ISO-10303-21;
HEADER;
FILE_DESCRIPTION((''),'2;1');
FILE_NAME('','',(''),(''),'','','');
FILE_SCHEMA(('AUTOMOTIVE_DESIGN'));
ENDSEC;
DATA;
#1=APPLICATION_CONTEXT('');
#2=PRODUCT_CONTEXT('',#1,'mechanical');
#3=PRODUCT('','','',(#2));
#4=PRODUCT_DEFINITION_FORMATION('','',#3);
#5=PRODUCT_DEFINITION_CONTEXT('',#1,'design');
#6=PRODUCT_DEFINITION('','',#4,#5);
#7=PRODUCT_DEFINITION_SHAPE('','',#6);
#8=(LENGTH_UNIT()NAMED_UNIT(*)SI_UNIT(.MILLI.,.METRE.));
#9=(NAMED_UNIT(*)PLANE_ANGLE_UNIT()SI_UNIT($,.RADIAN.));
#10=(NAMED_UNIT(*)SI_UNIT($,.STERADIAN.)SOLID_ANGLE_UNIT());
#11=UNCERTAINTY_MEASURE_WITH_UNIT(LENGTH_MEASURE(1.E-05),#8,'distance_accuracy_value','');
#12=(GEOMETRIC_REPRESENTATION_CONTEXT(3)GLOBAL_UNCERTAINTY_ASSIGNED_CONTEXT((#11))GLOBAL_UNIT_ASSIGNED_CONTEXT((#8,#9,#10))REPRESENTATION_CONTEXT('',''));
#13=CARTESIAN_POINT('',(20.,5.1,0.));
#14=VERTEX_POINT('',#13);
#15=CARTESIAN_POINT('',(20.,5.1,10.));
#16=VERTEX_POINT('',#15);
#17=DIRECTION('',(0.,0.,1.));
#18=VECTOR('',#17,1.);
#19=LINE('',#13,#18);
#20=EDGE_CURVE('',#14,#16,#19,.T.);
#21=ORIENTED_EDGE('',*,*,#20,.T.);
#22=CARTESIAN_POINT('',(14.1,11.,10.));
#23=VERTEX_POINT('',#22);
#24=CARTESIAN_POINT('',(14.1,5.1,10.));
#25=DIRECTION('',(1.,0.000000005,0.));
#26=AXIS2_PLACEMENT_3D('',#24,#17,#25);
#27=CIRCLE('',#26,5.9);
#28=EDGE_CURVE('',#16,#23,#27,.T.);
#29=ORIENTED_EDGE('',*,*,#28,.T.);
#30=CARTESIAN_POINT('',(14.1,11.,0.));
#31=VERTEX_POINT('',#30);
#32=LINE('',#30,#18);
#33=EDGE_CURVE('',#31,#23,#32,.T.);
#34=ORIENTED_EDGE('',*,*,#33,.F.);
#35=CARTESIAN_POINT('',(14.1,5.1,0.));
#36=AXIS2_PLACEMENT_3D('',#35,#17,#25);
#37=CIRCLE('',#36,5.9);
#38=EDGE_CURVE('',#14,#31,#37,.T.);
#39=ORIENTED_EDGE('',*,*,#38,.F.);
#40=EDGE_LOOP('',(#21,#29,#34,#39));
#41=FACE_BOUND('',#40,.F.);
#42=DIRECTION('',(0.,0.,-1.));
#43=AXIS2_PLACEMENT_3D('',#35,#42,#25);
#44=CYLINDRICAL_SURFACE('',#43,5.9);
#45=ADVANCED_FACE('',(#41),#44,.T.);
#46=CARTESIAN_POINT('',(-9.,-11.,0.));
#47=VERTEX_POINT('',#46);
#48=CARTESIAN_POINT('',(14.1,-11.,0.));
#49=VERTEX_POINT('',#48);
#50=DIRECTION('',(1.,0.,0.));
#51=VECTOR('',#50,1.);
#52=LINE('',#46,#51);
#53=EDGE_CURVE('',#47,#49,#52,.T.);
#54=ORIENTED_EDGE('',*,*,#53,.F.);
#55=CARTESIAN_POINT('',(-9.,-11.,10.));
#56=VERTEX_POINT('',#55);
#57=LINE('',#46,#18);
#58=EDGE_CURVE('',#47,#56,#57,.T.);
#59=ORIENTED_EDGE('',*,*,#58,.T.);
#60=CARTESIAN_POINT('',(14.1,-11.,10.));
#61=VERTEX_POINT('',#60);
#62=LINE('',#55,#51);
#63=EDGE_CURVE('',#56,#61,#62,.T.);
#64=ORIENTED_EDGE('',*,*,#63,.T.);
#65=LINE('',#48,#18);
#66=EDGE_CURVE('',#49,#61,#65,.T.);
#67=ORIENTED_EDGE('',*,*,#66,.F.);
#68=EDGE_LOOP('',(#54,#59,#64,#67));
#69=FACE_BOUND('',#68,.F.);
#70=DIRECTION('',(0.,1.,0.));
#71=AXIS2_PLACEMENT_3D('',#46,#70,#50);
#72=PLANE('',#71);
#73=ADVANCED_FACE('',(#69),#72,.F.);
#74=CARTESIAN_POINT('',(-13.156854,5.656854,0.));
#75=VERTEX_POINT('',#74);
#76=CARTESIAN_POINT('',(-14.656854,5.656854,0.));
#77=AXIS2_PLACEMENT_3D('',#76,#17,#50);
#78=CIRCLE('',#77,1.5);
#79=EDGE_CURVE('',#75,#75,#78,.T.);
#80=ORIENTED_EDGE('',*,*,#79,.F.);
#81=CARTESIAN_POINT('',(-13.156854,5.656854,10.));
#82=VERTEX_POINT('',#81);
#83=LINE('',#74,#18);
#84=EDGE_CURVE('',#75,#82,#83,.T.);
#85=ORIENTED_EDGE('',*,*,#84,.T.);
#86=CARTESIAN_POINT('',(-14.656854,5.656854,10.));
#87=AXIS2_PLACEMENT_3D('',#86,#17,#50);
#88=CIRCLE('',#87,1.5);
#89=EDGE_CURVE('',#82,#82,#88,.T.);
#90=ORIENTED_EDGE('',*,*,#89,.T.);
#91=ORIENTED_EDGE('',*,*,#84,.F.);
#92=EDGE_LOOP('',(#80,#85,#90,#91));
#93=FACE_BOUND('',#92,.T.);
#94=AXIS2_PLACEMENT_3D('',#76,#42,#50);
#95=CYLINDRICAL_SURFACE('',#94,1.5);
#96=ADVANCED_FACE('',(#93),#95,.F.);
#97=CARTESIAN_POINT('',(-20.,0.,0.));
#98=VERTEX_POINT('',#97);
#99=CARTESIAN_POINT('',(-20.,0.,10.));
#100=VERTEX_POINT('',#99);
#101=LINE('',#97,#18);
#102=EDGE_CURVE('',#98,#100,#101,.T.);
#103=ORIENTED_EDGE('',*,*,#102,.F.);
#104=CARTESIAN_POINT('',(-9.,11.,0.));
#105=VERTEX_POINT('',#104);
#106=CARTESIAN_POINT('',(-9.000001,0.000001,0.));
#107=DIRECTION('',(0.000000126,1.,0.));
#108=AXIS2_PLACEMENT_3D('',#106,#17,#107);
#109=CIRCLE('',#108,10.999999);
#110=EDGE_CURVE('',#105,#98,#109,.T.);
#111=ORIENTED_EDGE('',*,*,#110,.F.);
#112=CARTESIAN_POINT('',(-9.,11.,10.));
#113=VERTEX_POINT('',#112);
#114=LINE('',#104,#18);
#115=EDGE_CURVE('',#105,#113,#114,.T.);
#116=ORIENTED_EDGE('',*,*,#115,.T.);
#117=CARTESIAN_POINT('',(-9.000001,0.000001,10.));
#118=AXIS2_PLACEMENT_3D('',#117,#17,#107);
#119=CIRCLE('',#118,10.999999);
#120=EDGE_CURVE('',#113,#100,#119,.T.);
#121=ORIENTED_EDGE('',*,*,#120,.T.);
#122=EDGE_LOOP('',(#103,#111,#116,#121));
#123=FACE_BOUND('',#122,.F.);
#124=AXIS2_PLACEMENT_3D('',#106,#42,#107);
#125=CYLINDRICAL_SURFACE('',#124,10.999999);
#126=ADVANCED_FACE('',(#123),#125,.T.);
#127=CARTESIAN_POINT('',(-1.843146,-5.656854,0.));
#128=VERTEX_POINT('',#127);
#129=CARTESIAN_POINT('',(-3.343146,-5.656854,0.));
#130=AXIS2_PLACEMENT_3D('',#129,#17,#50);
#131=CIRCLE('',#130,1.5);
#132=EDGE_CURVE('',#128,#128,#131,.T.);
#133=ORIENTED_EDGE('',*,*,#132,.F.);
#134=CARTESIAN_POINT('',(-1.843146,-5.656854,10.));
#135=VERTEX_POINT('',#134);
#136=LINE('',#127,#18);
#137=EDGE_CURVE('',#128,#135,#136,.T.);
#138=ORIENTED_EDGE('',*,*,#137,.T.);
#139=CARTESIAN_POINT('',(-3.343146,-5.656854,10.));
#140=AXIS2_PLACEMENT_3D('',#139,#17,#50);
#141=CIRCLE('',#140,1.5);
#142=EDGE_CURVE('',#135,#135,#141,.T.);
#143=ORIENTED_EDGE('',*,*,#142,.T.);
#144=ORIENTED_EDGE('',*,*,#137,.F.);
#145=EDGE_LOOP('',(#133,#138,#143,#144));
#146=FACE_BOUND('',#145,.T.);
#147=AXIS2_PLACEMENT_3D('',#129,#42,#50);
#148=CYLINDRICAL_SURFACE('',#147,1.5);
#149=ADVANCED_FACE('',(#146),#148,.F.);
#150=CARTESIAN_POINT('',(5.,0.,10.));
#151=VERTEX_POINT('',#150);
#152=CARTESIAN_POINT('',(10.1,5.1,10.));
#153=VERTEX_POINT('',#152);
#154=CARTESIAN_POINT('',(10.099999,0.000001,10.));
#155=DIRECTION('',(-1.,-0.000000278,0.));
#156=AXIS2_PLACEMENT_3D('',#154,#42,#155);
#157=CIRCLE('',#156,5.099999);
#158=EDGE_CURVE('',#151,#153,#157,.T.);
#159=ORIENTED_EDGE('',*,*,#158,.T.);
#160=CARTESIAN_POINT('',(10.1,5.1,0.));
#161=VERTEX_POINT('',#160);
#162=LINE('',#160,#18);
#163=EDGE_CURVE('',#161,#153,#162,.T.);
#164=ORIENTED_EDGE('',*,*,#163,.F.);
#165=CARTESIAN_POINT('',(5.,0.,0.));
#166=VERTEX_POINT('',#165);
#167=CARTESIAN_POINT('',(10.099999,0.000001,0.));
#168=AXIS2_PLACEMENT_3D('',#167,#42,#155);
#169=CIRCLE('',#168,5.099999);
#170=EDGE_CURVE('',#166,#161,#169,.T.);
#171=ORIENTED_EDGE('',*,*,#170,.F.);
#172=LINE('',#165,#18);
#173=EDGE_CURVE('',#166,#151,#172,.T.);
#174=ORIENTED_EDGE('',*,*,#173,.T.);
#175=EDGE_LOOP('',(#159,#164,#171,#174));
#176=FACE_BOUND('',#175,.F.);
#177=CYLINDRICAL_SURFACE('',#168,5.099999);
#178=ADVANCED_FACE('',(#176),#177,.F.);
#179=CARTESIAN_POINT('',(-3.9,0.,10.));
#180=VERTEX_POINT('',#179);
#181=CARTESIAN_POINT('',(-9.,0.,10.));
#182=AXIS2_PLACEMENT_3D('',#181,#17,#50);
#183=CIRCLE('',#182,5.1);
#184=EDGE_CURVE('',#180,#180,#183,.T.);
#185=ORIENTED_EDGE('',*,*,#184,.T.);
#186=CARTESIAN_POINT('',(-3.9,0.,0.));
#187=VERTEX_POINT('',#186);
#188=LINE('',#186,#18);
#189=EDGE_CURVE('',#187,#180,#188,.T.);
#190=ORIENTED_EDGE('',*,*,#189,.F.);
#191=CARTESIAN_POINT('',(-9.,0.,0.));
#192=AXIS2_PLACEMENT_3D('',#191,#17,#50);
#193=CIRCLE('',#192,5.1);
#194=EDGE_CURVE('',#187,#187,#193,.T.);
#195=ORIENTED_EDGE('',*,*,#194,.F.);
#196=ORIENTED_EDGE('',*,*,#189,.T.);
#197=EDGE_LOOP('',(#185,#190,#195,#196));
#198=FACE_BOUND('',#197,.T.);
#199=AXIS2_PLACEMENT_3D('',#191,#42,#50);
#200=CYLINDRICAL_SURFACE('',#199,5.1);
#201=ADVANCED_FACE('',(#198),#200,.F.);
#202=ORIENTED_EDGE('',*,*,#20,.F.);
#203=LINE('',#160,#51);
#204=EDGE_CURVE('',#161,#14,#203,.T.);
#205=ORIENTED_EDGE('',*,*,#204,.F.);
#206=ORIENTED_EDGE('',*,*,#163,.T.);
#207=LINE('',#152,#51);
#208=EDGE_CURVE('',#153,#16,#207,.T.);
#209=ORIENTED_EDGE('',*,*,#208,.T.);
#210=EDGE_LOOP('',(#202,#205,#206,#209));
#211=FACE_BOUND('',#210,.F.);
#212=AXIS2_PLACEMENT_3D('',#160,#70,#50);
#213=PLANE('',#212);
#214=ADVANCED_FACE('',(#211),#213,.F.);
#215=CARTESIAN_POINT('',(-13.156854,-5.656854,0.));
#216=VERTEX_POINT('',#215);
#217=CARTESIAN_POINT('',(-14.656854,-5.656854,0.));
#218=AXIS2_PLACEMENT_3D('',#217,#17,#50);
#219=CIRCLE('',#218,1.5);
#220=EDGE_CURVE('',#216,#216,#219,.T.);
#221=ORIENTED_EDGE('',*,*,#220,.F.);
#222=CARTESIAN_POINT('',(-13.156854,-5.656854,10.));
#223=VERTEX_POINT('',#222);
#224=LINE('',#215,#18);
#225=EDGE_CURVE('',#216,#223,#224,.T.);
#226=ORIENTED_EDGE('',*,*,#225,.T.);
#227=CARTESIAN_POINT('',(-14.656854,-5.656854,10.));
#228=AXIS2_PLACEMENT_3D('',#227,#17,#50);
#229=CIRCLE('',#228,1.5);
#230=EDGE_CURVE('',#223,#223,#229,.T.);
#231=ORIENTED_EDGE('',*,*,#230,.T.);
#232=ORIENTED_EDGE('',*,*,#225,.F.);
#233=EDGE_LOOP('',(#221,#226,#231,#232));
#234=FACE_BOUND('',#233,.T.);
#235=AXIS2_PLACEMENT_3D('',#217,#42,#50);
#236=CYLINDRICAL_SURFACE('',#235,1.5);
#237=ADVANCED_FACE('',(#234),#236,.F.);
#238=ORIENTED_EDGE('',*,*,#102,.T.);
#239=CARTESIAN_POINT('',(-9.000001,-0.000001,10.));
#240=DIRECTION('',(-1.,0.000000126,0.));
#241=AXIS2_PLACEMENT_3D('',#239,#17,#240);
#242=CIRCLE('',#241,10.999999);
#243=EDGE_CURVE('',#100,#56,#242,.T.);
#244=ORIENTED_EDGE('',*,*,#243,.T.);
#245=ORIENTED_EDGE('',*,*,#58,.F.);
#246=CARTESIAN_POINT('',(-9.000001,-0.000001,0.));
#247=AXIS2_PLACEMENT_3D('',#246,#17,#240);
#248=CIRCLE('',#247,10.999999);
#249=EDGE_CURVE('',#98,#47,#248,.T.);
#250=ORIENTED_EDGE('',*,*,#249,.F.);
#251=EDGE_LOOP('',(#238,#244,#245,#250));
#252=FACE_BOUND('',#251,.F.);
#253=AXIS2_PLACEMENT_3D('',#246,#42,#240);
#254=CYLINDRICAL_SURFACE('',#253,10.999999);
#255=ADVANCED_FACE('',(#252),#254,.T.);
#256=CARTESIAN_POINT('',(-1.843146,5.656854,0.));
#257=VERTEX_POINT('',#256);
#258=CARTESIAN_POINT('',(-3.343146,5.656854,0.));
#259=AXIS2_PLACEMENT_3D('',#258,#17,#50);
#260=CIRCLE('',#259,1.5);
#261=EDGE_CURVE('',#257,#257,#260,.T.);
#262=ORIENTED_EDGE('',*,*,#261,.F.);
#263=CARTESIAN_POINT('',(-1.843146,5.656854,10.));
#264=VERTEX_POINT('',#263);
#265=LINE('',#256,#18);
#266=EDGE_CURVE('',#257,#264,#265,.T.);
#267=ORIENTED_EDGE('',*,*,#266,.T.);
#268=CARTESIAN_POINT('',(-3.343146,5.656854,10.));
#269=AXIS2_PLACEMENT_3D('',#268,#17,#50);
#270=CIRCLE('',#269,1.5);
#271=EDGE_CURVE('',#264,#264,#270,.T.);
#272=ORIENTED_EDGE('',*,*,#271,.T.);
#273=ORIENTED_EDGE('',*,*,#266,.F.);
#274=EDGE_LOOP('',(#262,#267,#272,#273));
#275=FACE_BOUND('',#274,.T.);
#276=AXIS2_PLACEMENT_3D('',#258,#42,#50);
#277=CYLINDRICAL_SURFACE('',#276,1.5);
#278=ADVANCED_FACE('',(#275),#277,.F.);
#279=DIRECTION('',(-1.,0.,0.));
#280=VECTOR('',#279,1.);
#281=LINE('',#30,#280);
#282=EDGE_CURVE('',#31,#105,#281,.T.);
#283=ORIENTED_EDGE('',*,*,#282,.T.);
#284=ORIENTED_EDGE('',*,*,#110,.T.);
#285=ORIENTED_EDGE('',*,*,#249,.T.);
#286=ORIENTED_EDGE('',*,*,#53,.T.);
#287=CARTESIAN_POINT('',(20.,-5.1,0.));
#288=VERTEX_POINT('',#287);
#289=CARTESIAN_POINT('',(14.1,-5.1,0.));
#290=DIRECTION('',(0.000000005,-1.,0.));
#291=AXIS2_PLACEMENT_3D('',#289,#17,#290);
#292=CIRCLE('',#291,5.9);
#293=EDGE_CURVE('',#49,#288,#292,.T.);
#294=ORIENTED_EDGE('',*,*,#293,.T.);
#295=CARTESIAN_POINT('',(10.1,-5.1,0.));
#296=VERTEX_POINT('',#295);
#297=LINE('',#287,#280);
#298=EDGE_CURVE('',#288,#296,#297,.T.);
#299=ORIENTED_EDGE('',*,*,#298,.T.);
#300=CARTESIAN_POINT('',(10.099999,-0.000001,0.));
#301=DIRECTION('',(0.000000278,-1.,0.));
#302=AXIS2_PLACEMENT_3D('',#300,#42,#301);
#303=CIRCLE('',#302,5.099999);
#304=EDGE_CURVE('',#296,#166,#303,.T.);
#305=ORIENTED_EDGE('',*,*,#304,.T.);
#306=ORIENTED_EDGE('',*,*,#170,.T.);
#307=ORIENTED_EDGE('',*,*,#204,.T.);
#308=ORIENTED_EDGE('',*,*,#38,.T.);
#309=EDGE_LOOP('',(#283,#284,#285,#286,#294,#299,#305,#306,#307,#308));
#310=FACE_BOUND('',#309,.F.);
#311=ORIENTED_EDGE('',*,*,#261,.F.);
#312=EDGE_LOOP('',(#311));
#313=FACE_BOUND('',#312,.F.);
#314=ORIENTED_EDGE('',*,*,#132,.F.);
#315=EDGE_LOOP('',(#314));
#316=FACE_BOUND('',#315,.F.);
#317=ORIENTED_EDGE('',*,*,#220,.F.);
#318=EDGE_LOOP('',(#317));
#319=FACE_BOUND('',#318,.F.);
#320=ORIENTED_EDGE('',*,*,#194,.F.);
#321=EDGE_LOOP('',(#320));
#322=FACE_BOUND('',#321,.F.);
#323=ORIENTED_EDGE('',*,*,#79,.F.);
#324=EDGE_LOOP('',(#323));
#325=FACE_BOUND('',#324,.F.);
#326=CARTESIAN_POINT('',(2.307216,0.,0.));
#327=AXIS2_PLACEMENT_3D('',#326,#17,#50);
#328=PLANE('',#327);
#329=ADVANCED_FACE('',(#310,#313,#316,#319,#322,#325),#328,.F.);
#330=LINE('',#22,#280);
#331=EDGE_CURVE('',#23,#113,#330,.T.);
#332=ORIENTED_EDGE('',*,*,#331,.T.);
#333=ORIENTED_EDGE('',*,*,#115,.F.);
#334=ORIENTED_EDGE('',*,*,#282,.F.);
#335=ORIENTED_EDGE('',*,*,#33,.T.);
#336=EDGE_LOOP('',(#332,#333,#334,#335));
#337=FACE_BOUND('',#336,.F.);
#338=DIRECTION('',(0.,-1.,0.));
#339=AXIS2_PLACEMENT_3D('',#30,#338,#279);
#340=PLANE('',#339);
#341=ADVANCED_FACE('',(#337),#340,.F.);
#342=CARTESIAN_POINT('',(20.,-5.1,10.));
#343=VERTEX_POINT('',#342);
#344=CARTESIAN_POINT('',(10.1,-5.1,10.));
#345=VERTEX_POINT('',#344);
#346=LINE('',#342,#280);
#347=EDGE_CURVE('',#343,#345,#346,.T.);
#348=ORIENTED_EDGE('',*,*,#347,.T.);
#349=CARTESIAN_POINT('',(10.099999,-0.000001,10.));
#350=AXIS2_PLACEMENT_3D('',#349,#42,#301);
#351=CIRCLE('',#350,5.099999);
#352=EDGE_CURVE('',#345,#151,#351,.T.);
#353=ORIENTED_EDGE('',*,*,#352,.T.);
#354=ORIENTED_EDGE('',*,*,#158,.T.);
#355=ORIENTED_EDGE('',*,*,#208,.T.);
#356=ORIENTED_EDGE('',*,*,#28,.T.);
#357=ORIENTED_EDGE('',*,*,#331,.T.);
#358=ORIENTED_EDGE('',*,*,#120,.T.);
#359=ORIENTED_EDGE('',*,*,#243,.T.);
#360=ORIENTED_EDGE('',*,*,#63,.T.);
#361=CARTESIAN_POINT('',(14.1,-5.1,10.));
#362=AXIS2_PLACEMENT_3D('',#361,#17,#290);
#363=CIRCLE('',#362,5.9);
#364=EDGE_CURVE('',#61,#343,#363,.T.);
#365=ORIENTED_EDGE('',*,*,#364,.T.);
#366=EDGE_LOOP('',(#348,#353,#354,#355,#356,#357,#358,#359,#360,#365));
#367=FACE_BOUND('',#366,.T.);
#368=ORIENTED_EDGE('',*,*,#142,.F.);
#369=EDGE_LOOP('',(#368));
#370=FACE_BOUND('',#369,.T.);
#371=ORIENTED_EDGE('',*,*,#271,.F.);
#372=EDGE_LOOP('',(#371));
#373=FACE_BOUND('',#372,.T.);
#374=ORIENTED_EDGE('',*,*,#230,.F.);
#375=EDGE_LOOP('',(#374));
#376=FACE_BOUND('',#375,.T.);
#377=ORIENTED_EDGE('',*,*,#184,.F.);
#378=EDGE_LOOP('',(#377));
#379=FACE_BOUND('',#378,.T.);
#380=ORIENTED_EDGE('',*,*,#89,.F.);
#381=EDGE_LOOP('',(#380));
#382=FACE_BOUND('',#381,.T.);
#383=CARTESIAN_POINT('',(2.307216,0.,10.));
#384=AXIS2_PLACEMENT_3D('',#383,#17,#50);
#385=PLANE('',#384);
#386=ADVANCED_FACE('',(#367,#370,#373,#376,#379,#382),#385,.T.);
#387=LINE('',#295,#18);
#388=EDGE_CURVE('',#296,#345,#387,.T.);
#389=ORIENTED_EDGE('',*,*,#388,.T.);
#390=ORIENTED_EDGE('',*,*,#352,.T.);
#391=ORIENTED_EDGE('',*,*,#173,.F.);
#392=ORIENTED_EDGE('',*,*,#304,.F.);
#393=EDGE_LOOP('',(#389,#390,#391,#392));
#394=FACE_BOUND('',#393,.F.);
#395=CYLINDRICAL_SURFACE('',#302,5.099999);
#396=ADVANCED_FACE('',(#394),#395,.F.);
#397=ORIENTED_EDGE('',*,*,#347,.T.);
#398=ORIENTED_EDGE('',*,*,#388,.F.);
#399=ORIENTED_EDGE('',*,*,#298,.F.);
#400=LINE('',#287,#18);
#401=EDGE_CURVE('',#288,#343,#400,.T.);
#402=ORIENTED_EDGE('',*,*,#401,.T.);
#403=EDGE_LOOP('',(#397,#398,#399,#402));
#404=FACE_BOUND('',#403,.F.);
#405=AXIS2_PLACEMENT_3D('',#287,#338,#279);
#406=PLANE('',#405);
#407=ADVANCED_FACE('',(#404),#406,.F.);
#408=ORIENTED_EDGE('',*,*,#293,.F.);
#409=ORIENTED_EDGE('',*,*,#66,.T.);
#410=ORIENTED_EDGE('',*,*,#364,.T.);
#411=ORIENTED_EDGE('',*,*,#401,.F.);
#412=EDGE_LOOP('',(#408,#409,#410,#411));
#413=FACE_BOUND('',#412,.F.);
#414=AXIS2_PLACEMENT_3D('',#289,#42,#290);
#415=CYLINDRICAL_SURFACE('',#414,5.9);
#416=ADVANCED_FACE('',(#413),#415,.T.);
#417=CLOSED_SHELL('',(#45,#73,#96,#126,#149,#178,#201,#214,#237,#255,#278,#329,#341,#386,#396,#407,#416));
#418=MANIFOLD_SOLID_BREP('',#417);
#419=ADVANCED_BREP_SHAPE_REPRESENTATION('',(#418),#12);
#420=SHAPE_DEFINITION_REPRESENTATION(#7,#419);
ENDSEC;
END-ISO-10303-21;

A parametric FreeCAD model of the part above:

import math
import FreeCAD as App
import Part
import Sketcher
from FreeCAD import Vector

doc = App.newDocument("Part")
body = doc.addObject("PartDesign::Body", "Body")

sketch1 = body.newObject("Sketcher::SketchObject", "Sketch")
sketch1.AttachmentSupport = (doc.getObject("XY_Plane"), [""])
sketch1.MapMode = "FlatFace"
sketch1.addGeometry([
    Part.ArcOfCircle(Part.Circle(Vector(14.1, 5.1, 0), Vector(0, 0, 1), 5.9), math.radians(0), math.radians(90)),
    Part.LineSegment(Vector(14.1, 11, 0), Vector(-9, 11, 0)),
    Part.ArcOfCircle(Part.Circle(Vector(-9, 0, 0), Vector(0, 0, 1), 11), math.radians(90), math.radians(180)),
    Part.ArcOfCircle(Part.Circle(Vector(-9, 0, 0), Vector(0, 0, 1), 11), math.radians(180), math.radians(270)),
    Part.LineSegment(Vector(-9, -11, 0), Vector(14.1, -11, 0)),
    Part.ArcOfCircle(Part.Circle(Vector(14.1, -5.1, 0), Vector(0, 0, 1), 5.9), math.radians(-90), math.radians(0)),
    Part.LineSegment(Vector(20, -5.1, 0), Vector(10.1, -5.1, 0)),
    Part.ArcOfCircle(Part.Circle(Vector(10.1, 0, 0), Vector(0, 0, 1), 5.1), math.radians(180), math.radians(270)),
    Part.ArcOfCircle(Part.Circle(Vector(10.1, 0, 0), Vector(0, 0, 1), 5.1), math.radians(90), math.radians(180)),
    Part.LineSegment(Vector(10.1, 5.1, 0), Vector(20, 5.1, 0)),
    Part.Circle(Vector(-14.7, -5.7, 0), Vector(0, 0, 1), 1.5),
    Part.Circle(Vector(-3.3, -5.7, 0), Vector(0, 0, 1), 1.5),
    Part.Circle(Vector(-9, 0, 0), Vector(0, 0, 1), 5.1),
    Part.Circle(Vector(-14.7, 5.7, 0), Vector(0, 0, 1), 1.5),
    Part.Circle(Vector(-3.3, 5.7, 0), Vector(0, 0, 1), 1.5),
], False)
sketch1.addConstraint([
    Sketcher.Constraint("Tangent", 0, 2, 1, 1),
    Sketcher.Constraint("Tangent", 1, 2, 2, 1),
    Sketcher.Constraint("Tangent", 2, 2, 3, 1),
    Sketcher.Constraint("Tangent", 3, 2, 4, 1),
    Sketcher.Constraint("Tangent", 4, 2, 5, 1),
    Sketcher.Constraint("Coincident", 5, 2, 6, 1),
    Sketcher.Constraint("Tangent", 6, 2, 7, 2),
    Sketcher.Constraint("Tangent", 7, 1, 8, 2),
    Sketcher.Constraint("Tangent", 8, 1, 9, 1),
    Sketcher.Constraint("Coincident", 9, 2, 0, 1),
    Sketcher.Constraint("Horizontal", 1),
    Sketcher.Constraint("Horizontal", 4),
    Sketcher.Constraint("Horizontal", 6),
    Sketcher.Constraint("Horizontal", 9),
    Sketcher.Constraint("Coincident", 12, 3, 2, 3),
    Sketcher.Constraint("Equal", 2, 3),
    Sketcher.Constraint("Equal", 0, 5),
    Sketcher.Constraint("Equal", 7, 8),
    Sketcher.Constraint("Equal", 10, 11),
    Sketcher.Constraint("Equal", 8, 12),
    Sketcher.Constraint("Equal", 11, 13),
    Sketcher.Constraint("Equal", 13, 14),
    Sketcher.Constraint("Symmetric", 0, 3, 5, 3, -1),
    Sketcher.Constraint("Symmetric", 10, 3, 13, 3, -1),
    Sketcher.Constraint("Symmetric", 11, 3, 14, 3, -1),
    Sketcher.Constraint("PointOnObject", 7, 3, -1),
    Sketcher.Constraint("PointOnObject", 2, 2, -1),
    Sketcher.Constraint("PointOnObject", 7, 1, -1),
    Sketcher.Constraint("Horizontal", 10, 3, 11, 3),
    Sketcher.Constraint("Horizontal", 0, 3, 8, 1),
    Sketcher.Constraint("Diameter", 10, 3.0),
    Sketcher.Constraint("Radius", 2, 10.999999),
    Sketcher.Constraint("Diameter", 12, 10.2),
    Sketcher.Constraint("DistanceX", 1, 2, 1, 1, 23.1),
    Sketcher.Constraint("DistanceX", 6, 2, 6, 1, 9.9),
    Sketcher.Constraint("DistanceX", 2, 3, -1, 1, 9.000001),
    Sketcher.Constraint("DistanceX", 10, 3, -1, 1, 14.656854),
    Sketcher.Constraint("DistanceY", 10, 3, -1, 1, 5.656854),
    Sketcher.Constraint("DistanceX", 11, 3, -1, 1, 3.343146),
])
pad1 = body.newObject("PartDesign::Pad", "Pad")
pad1.Profile = sketch1
pad1.Length = 10

doc.recompute()
